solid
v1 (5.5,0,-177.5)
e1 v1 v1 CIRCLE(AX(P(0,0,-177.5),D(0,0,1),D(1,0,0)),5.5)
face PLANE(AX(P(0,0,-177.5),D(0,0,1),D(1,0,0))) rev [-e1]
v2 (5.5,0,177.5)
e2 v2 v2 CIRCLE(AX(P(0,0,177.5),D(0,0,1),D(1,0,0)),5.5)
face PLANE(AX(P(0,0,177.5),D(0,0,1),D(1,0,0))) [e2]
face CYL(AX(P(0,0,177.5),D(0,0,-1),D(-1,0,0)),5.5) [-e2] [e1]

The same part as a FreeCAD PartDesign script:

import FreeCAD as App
import Part
import Sketcher
Q = App.Units.Quantity

doc = App.newDocument("Part")
params = doc.addObject("Spreadsheet::Sheet", "Params")
for row, (alias, value) in enumerate([
    ("sketch1_diameter", "11 mm"),
    ("pad1_length", "355 mm"),
], start=1):
    params.set(f"A{row}", alias)
    params.set(f"B{row}", "=" + value)
    params.setAlias(f"B{row}", alias)

body = doc.addObject("PartDesign::Body", "Body")

# Sketch on XY plane
sketch1 = doc.addObject("Sketcher::SketchObject", "Sketch")
body.addObject(sketch1)
sketch1.AttachmentSupport = (doc.XY_Plane, [""])
sketch1.MapMode = "FlatFace"
sketch1.addGeometry(Part.Circle(App.Vector(0, 0, 0), App.Vector(0, 0, 1), 6), False)
sketch1.addConstraint(Sketcher.Constraint("Coincident", 0, 3, -1, 1))
sketch1.addConstraint(Sketcher.Constraint("Diameter", 0, Q("11 mm")))
sketch1.setExpression("Constraints[1]", "Params.sketch1_diameter")
pad1 = doc.addObject("PartDesign::Pad", "Pad")
body.addObject(pad1)
pad1.Profile = sketch1
pad1.setExpression("Length", "Params.pad1_length")
pad1.Midplane = True

doc.recompute()
